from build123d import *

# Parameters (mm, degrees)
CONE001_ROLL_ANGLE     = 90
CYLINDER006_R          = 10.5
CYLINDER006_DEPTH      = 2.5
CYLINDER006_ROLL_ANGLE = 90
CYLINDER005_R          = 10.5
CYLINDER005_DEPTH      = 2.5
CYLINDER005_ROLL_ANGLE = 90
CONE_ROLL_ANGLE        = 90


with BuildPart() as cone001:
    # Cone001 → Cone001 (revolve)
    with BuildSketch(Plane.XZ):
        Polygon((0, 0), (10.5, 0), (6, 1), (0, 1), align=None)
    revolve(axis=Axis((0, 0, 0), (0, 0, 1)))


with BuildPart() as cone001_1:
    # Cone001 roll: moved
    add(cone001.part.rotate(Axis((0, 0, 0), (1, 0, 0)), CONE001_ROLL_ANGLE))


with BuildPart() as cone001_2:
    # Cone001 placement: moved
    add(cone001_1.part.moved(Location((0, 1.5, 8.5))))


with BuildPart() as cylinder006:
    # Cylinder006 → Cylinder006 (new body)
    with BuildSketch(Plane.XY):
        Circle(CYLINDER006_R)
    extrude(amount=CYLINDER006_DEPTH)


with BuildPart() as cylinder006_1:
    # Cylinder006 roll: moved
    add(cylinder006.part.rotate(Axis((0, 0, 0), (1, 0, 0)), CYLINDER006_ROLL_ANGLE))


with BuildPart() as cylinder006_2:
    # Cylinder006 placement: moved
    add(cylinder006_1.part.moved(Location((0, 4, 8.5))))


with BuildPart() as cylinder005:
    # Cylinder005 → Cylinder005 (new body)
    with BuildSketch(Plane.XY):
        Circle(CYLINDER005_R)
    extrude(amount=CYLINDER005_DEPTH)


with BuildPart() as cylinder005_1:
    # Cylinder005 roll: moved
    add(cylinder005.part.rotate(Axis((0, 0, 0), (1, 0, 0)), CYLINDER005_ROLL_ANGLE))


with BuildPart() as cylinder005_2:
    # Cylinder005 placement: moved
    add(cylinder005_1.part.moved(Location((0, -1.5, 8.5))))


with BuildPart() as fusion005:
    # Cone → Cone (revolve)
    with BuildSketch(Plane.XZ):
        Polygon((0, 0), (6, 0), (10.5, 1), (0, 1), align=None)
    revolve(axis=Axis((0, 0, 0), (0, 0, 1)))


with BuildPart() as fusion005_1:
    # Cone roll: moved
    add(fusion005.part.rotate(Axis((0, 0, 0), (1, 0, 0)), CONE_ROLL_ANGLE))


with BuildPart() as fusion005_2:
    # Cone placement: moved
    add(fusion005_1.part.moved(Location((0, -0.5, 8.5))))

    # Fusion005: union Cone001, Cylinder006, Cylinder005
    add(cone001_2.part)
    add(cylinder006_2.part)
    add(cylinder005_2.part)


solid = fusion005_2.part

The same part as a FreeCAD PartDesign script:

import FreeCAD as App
import Part
import Sketcher
Q = App.Units.Quantity

doc = App.newDocument("Part")
params = doc.addObject("Spreadsheet::Sheet", "Params")
for row, (alias, value) in enumerate([
    ("sketch1_width", "6 mm"),
    ("sketch1_height", "1 mm"),
    ("sketch1_width2", "10.5 mm"),
    ("revolution_angle", "360 deg"),
    ("sketch2_diameter", "21 mm"),
    ("pad1_length", "2.5 mm"),
    ("sketch3_diameter", "21 mm"),
    ("pad2_length", "2.5 mm"),
    ("sketch4_width", "6 mm"),
    ("sketch4_height", "1 mm"),
    ("sketch4_width2", "10.5 mm"),
    ("revolution2_angle", "360 deg"),
], start=1):
    params.set(f"A{row}", alias)
    params.set(f"B{row}", "=" + value)
    params.setAlias(f"B{row}", alias)

body = doc.addObject("PartDesign::Body", "Body")

# Sketch on XZ plane
sketch1 = doc.addObject("Sketcher::SketchObject", "Sketch")
body.addObject(sketch1)
sketch1.AttachmentSupport = (doc.XZ_Plane, [""])
sketch1.MapMode = "FlatFace"
sketch1.addGeometry([
    Part.LineSegment(App.Vector(0, 0, 0), App.Vector(10.5, 0, 0)),
    Part.LineSegment(App.Vector(10.5, 0, 0), App.Vector(6, 1, 0)),
    Part.LineSegment(App.Vector(6, 1, 0), App.Vector(0, 1, 0)),
    Part.LineSegment(App.Vector(0, 1, 0), App.Vector(0, 0, 0)),
], False)
sketch1.addConstraint([
    Sketcher.Constraint("Coincident", 0, 2, 1, 1),
    Sketcher.Constraint("Coincident", 1, 2, 2, 1),
    Sketcher.Constraint("Coincident", 2, 2, 3, 1),
    Sketcher.Constraint("Coincident", 3, 2, 0, 1),
    Sketcher.Constraint("Horizontal", 0),
    Sketcher.Constraint("Horizontal", 2),
    Sketcher.Constraint("Vertical", 3),
    Sketcher.Constraint("Coincident", 3, 2, -1, 1),
    Sketcher.Constraint("DistanceX", 2, 2, 2, 1, Q("6 mm")),
    Sketcher.Constraint("DistanceY", 3, 2, 3, 1, Q("1 mm")),
    Sketcher.Constraint("DistanceX", 0, 1, 0, 2, Q("10.5 mm")),
])
sketch1.setExpression("Constraints[8]", "Params.sketch1_width")
sketch1.setExpression("Constraints[9]", "Params.sketch1_height")
sketch1.setExpression("Constraints[10]", "Params.sketch1_width2")
revolution = doc.addObject("PartDesign::Revolution", "Revolution")
body.addObject(revolution)
revolution.Profile = sketch1
revolution.ReferenceAxis = (sketch1, ["V_Axis"])
revolution.setExpression("Angle", "Params.revolution_angle")
body2 = doc.addObject("PartDesign::Body", "Body001")
doc.recompute()

body.Placement = App.Placement(App.Vector(0, 0, 0), App.Rotation(App.Vector(1, 0, 0), 90))
boolean = doc.addObject("PartDesign::Boolean", "Boolean")
body2.addObject(boolean)
boolean.Type = "Fuse"
boolean.addObjects([body])
body3 = doc.addObject("PartDesign::Body", "Body002")
doc.recompute()

body2.Placement = App.Placement(App.Vector(0, 1.5, 8.5), App.Rotation(App.Vector(0, 0, 1), 0))
boolean2 = doc.addObject("PartDesign::Boolean", "Boolean001")
body3.addObject(boolean2)
boolean2.Type = "Fuse"
boolean2.addObjects([body2])
body4 = doc.addObject("PartDesign::Body", "Body003")

# Sketch on XY plane
sketch2 = doc.addObject("Sketcher::SketchObject", "Sketch001")
body4.addObject(sketch2)
sketch2.AttachmentSupport = (doc.getObject("XY_Plane003"), [""])
sketch2.MapMode = "FlatFace"
sketch2.addGeometry(Part.Circle(App.Vector(0, 0, 0), App.Vector(0, 0, 1), 10), False)
sketch2.addConstraint([
    Sketcher.Constraint("Coincident", 0, 3, -1, 1),
    Sketcher.Constraint("Diameter", 0, Q("21 mm")),
])
sketch2.setExpression("Constraints[1]", "Params.sketch2_diameter")
pad1 = doc.addObject("PartDesign::Pad", "Pad")
body4.addObject(pad1)
pad1.Profile = sketch2
pad1.setExpression("Length", "Params.pad1_length")
body5 = doc.addObject("PartDesign::Body", "Body004")
doc.recompute()

body4.Placement = App.Placement(App.Vector(0, 0, 0), App.Rotation(App.Vector(1, 0, 0), 90))
boolean3 = doc.addObject("PartDesign::Boolean", "Boolean002")
body5.addObject(boolean3)
boolean3.Type = "Fuse"
boolean3.addObjects([body4])
body6 = doc.addObject("PartDesign::Body", "Body005")
doc.recompute()

body5.Placement = App.Placement(App.Vector(0, 4, 8.5), App.Rotation(App.Vector(0, 0, 1), 0))
boolean4 = doc.addObject("PartDesign::Boolean", "Boolean003")
body6.addObject(boolean4)
boolean4.Type = "Fuse"
boolean4.addObjects([body5])
body7 = doc.addObject("PartDesign::Body", "Body006")

# Sketch on XY plane
sketch3 = doc.addObject("Sketcher::SketchObject", "Sketch002")
body7.addObject(sketch3)
sketch3.AttachmentSupport = (doc.getObject("XY_Plane006"), [""])
sketch3.MapMode = "FlatFace"
sketch3.addGeometry(Part.Circle(App.Vector(0, 0, 0), App.Vector(0, 0, 1), 10), False)
sketch3.addConstraint([
    Sketcher.Constraint("Coincident", 0, 3, -1, 1),
    Sketcher.Constraint("Diameter", 0, Q("21 mm")),
])
sketch3.setExpression("Constraints[1]", "Params.sketch3_diameter")
pad2 = doc.addObject("PartDesign::Pad", "Pad001")
body7.addObject(pad2)
pad2.Profile = sketch3
pad2.setExpression("Length", "Params.pad2_length")
body8 = doc.addObject("PartDesign::Body", "Body007")
doc.recompute()

body7.Placement = App.Placement(App.Vector(0, 0, 0), App.Rotation(App.Vector(1, 0, 0), 90))
boolean5 = doc.addObject("PartDesign::Boolean", "Boolean004")
body8.addObject(boolean5)
boolean5.Type = "Fuse"
boolean5.addObjects([body7])
body9 = doc.addObject("PartDesign::Body", "Body008")
doc.recompute()

body8.Placement = App.Placement(App.Vector(0, -1.5, 8.5), App.Rotation(App.Vector(0, 0, 1), 0))
boolean6 = doc.addObject("PartDesign::Boolean", "Boolean005")
body9.addObject(boolean6)
boolean6.Type = "Fuse"
boolean6.addObjects([body8])
body10 = doc.addObject("PartDesign::Body", "Body009")

# Sketch on XZ plane
sketch4 = doc.addObject("Sketcher::SketchObject", "Sketch003")
body10.addObject(sketch4)
sketch4.AttachmentSupport = (doc.getObject("XZ_Plane009"), [""])
sketch4.MapMode = "FlatFace"
sketch4.addGeometry([
    Part.LineSegment(App.Vector(0, 0, 0), App.Vector(6, 0, 0)),
    Part.LineSegment(App.Vector(6, 0, 0), App.Vector(10.5, 1, 0)),
    Part.LineSegment(App.Vector(10.5, 1, 0), App.Vector(0, 1, 0)),
    Part.LineSegment(App.Vector(0, 1, 0), App.Vector(0, 0, 0)),
], False)
sketch4.addConstraint([
    Sketcher.Constraint("Coincident", 0, 2, 1, 1),
    Sketcher.Constraint("Coincident", 1, 2, 2, 1),
    Sketcher.Constraint("Coincident", 2, 2, 3, 1),
    Sketcher.Constraint("Coincident", 3, 2, 0, 1),
    Sketcher.Constraint("Horizontal", 0),
    Sketcher.Constraint("Horizontal", 2),
    Sketcher.Constraint("Vertical", 3),
    Sketcher.Constraint("Coincident", 3, 2, -1, 1),
    Sketcher.Constraint("DistanceX", 0, 1, 0, 2, Q("6 mm")),
    Sketcher.Constraint("DistanceY", 3, 2, 3, 1, Q("1 mm")),
    Sketcher.Constraint("DistanceX", 2, 2, 2, 1, Q("10.5 mm")),
])
sketch4.setExpression("Constraints[8]", "Params.sketch4_width")
sketch4.setExpression("Constraints[9]", "Params.sketch4_height")
sketch4.setExpression("Constraints[10]", "Params.sketch4_width2")
revolution2 = doc.addObject("PartDesign::Revolution", "Revolution001")
body10.addObject(revolution2)
revolution2.Profile = sketch4
revolution2.ReferenceAxis = (sketch4, ["V_Axis"])
revolution2.setExpression("Angle", "Params.revolution2_angle")
body11 = doc.addObject("PartDesign::Body", "Body010")
doc.recompute()

body10.Placement = App.Placement(App.Vector(0, 0, 0), App.Rotation(App.Vector(1, 0, 0), 90))
boolean7 = doc.addObject("PartDesign::Boolean", "Boolean006")
body11.addObject(boolean7)
boolean7.Type = "Fuse"
boolean7.addObjects([body10])
body12 = doc.addObject("PartDesign::Body", "Body011")
body12.AllowCompound = True
doc.recompute()

body11.Placement = App.Placement(App.Vector(0, -0.5, 8.5), App.Rotation(App.Vector(0, 0, 1), 0))
boolean8 = doc.addObject("PartDesign::Boolean", "Boolean007")
body12.addObject(boolean8)
boolean8.Type = "Fuse"
boolean8.addObjects([body11])
doc.recompute()

boolean9 = doc.addObject("PartDesign::Boolean", "Boolean008")
body12.addObject(boolean9)
boolean9.Type = "Fuse"
boolean9.addObjects([body3])
doc.recompute()

boolean10 = doc.addObject("PartDesign::Boolean", "Boolean009")
body12.addObject(boolean10)
boolean10.Type = "Fuse"
boolean10.addObjects([body6])
doc.recompute()

boolean11 = doc.addObject("PartDesign::Boolean", "Boolean010")
body12.addObject(boolean11)
boolean11.Type = "Fuse"
boolean11.addObjects([body9])

doc.recompute()
